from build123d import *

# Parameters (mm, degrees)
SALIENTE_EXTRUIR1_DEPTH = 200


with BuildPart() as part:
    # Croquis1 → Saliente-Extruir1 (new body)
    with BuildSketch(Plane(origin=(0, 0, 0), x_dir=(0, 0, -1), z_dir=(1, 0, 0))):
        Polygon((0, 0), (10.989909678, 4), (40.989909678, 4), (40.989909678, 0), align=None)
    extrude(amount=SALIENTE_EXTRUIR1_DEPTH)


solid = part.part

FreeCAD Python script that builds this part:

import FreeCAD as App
import Part
import Sketcher
from FreeCAD import Vector
Q = App.Units.Quantity


def add_polygon(sketch, points):
    """Adds a closed chain of lines whose ends are joined by coincident constraints."""
    first, n = sketch.GeometryCount, len(points)
    for a, b in zip(points, points[1:] + points[:1]):
        sketch.addGeometry(Part.LineSegment(App.Vector(*a, 0), App.Vector(*b, 0)), False)
    for i in range(n):
        sketch.addConstraint(Sketcher.Constraint("Coincident", first + i, 2, first + (i + 1) % n, 1))

doc = App.newDocument("Part")
body = doc.addObject("PartDesign::Body", "Body")

# Sketch on YZ plane
sketch1 = body.newObject("Sketcher::SketchObject", "Sketch")
sketch1.AttachmentSupport = (doc.getObject("YZ_Plane"), [""])
sketch1.MapMode = "FlatFace"
add_polygon(sketch1, [(4, -10.98991), (0, 0), (0, -40.98991), (4, -40.98991)])  # lines 0-3
sketch1.addConstraint([
    Sketcher.Constraint("Vertical", 1),
    Sketcher.Constraint("Horizontal", 2),
    Sketcher.Constraint("Vertical", 3),
    Sketcher.Constraint("Coincident", 0, 2, -1, 1),
    Sketcher.Constraint("DistanceX", 2, 1, 2, 2, 4.0),
    Sketcher.Constraint("DistanceY", 3, 1, 3, 2, 30.0),
    Sketcher.Constraint("Angle", 0, Q("110 deg")),
])
pad1 = body.newObject("PartDesign::Pad", "Pad")
pad1.Profile = sketch1
pad1.Length = 200

doc.recompute()
